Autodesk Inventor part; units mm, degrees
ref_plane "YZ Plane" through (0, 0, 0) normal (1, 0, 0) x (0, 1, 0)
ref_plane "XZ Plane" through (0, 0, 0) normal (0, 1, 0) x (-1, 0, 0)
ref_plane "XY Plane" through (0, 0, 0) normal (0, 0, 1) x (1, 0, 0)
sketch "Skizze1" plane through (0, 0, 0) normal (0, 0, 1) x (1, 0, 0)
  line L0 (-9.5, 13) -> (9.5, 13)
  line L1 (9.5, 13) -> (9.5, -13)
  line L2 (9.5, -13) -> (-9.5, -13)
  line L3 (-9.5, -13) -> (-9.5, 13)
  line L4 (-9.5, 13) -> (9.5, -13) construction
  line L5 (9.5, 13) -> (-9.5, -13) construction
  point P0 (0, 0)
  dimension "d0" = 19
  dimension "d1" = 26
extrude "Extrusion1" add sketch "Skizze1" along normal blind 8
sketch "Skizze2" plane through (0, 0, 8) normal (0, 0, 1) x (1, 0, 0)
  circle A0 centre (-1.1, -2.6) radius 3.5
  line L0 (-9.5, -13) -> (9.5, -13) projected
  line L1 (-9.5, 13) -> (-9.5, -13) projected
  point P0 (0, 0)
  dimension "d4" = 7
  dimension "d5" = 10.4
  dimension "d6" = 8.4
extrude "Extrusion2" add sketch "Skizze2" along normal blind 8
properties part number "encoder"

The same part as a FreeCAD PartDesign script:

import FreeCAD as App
import Part
import Sketcher


def add_polygon(sketch, points):
    """Adds a closed chain of lines whose ends are joined by coincident constraints."""
    first, n = sketch.GeometryCount, len(points)
    for a, b in zip(points, points[1:] + points[:1]):
        sketch.addGeometry(Part.LineSegment(App.Vector(*a, 0), App.Vector(*b, 0)), False)
    for i in range(n):
        sketch.addConstraint(Sketcher.Constraint("Coincident", first + i, 2, first + (i + 1) % n, 1))

doc = App.newDocument("Part")
body = doc.addObject("PartDesign::Body", "Body")

# Sketch on XY plane
sketch1 = body.newObject("Sketcher::SketchObject", "Sketch")
sketch1.AttachmentSupport = (doc.getObject("XY_Plane"), [""])
sketch1.MapMode = "FlatFace"
add_polygon(sketch1, [(10, 13), (-10, 13), (-10, -13), (10, -13)])  # lines 0-3
sketch1.addConstraint([
    Sketcher.Constraint("Horizontal", 0),
    Sketcher.Constraint("Vertical", 1),
    Sketcher.Constraint("Horizontal", 2),
    Sketcher.Constraint("Vertical", 3),
    Sketcher.Constraint("Symmetric", 0, 2, 2, 2, -1, 1),
    Sketcher.Constraint("DistanceX", 0, 2, 0, 1, 19.0),
    Sketcher.Constraint("DistanceY", 1, 2, 1, 1, 26.0),
])
pad1 = body.newObject("PartDesign::Pad", "Pad")
pad1.Profile = sketch1
pad1.Length = 8

# Sketch on XY plane
sketch2 = body.newObject("Sketcher::SketchObject", "Sketch001")
sketch2.AttachmentSupport = (doc.getObject("XY_Plane"), [""])
sketch2.MapMode = "FlatFace"
sketch2.AttachmentOffset = App.Placement(App.Vector(0, 0, 8), App.Rotation())
sketch2.addGeometry(Part.Circle(App.Vector(-1.1, -2.6, 0), App.Vector(0, 0, 1), 3.5), False)
sketch2.addConstraint([
    Sketcher.Constraint("Diameter", 0, 7.0),
    Sketcher.Constraint("DistanceX", 0, 3, -1, 1, 1.1),
    Sketcher.Constraint("DistanceY", 0, 3, -1, 1, 2.6),
])
pad2 = body.newObject("PartDesign::Pad", "Pad001")
pad2.Profile = sketch2
pad2.Length = 8

doc.recompute()
